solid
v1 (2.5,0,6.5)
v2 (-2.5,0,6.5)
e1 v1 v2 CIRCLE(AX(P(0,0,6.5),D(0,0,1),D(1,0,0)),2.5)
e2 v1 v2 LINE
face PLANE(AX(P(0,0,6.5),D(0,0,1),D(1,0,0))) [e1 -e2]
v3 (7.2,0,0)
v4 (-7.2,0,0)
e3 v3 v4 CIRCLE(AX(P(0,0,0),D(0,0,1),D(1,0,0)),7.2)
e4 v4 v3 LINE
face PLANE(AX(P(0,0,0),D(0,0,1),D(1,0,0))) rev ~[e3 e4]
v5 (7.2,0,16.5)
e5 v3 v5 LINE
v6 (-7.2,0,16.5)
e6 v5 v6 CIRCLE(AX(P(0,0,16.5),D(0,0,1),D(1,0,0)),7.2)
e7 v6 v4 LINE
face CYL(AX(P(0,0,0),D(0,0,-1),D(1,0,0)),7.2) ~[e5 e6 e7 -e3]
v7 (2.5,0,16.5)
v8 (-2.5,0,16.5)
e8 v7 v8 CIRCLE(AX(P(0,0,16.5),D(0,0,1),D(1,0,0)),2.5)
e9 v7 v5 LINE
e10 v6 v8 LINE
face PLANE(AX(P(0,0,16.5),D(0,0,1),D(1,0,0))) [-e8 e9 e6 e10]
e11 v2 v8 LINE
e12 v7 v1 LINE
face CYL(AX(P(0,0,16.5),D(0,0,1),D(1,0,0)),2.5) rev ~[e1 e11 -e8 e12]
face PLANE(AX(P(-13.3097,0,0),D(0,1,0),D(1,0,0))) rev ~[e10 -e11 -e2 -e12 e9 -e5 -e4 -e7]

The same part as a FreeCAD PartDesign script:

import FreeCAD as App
import Part
import Sketcher
from FreeCAD import Vector


def add_polygon(sketch, points):
    """Adds a closed chain of lines whose ends are joined by coincident constraints."""
    first, n = sketch.GeometryCount, len(points)
    for a, b in zip(points, points[1:] + points[:1]):
        sketch.addGeometry(Part.LineSegment(App.Vector(*a, 0), App.Vector(*b, 0)), False)
    for i in range(n):
        sketch.addConstraint(Sketcher.Constraint("Coincident", first + i, 2, first + (i + 1) % n, 1))

doc = App.newDocument("Part")
body = doc.addObject("PartDesign::Body", "Body")

# Sketch on XY plane
sketch1 = body.newObject("Sketcher::SketchObject", "Sketch")
sketch1.AttachmentSupport = (doc.getObject("XY_Plane"), [""])
sketch1.MapMode = "FlatFace"
sketch1.addGeometry(Part.Circle(Vector(0, 0, 0), Vector(0, 0, 1), 7), False)
sketch1.addConstraint([
    Sketcher.Constraint("Coincident", 0, 3, -1, 1),
    Sketcher.Constraint("Diameter", 0, 14.4),
])
pad1 = body.newObject("PartDesign::Pad", "Pad")
pad1.Profile = sketch1
pad1.Length = 16.5

# Sketch on XY plane
sketch2 = body.newObject("Sketcher::SketchObject", "Sketch001")
sketch2.AttachmentSupport = (doc.getObject("XY_Plane"), [""])
sketch2.MapMode = "FlatFace"
sketch2.AttachmentOffset = App.Placement(Vector(0, 0, 16.5), App.Rotation())
sketch2.addGeometry(Part.Circle(Vector(0, 0, 0), Vector(0, 0, 1), 2.5), False)
sketch2.addConstraint([
    Sketcher.Constraint("Coincident", 0, 3, -1, 1),
    Sketcher.Constraint("Diameter", 0, 5.0),
])
pocket1 = body.newObject("PartDesign::Pocket", "Pocket")
pocket1.Profile = sketch2
pocket1.Length = 10

# Sketch on XY plane
sketch3 = body.newObject("Sketcher::SketchObject", "Sketch002")
sketch3.AttachmentSupport = (doc.getObject("XY_Plane"), [""])
sketch3.MapMode = "FlatFace"
add_polygon(sketch3, [(-13, -12), (-13, 0), (9, 0), (9, -12)])  # lines 0-3
sketch3.addConstraint([
    Sketcher.Constraint("Vertical", 0),
    Sketcher.Constraint("Horizontal", 1),
    Sketcher.Constraint("Vertical", 2),
    Sketcher.Constraint("Horizontal", 3),
    Sketcher.Constraint("PointOnObject", 0, 2, -1),
    Sketcher.Constraint("DistanceX", 1, 1, 1, 2, 22.6653),
    Sketcher.Constraint("DistanceY", 0, 1, 0, 2, 11.7916),
    Sketcher.Constraint("DistanceX", 0, 2, -1, 1, 13.3097),
])
pocket2 = body.newObject("PartDesign::Pocket", "Pocket001")
pocket2.Profile = sketch3
pocket2.Length = 16.5
pocket2.Reversed = True

doc.recompute()
